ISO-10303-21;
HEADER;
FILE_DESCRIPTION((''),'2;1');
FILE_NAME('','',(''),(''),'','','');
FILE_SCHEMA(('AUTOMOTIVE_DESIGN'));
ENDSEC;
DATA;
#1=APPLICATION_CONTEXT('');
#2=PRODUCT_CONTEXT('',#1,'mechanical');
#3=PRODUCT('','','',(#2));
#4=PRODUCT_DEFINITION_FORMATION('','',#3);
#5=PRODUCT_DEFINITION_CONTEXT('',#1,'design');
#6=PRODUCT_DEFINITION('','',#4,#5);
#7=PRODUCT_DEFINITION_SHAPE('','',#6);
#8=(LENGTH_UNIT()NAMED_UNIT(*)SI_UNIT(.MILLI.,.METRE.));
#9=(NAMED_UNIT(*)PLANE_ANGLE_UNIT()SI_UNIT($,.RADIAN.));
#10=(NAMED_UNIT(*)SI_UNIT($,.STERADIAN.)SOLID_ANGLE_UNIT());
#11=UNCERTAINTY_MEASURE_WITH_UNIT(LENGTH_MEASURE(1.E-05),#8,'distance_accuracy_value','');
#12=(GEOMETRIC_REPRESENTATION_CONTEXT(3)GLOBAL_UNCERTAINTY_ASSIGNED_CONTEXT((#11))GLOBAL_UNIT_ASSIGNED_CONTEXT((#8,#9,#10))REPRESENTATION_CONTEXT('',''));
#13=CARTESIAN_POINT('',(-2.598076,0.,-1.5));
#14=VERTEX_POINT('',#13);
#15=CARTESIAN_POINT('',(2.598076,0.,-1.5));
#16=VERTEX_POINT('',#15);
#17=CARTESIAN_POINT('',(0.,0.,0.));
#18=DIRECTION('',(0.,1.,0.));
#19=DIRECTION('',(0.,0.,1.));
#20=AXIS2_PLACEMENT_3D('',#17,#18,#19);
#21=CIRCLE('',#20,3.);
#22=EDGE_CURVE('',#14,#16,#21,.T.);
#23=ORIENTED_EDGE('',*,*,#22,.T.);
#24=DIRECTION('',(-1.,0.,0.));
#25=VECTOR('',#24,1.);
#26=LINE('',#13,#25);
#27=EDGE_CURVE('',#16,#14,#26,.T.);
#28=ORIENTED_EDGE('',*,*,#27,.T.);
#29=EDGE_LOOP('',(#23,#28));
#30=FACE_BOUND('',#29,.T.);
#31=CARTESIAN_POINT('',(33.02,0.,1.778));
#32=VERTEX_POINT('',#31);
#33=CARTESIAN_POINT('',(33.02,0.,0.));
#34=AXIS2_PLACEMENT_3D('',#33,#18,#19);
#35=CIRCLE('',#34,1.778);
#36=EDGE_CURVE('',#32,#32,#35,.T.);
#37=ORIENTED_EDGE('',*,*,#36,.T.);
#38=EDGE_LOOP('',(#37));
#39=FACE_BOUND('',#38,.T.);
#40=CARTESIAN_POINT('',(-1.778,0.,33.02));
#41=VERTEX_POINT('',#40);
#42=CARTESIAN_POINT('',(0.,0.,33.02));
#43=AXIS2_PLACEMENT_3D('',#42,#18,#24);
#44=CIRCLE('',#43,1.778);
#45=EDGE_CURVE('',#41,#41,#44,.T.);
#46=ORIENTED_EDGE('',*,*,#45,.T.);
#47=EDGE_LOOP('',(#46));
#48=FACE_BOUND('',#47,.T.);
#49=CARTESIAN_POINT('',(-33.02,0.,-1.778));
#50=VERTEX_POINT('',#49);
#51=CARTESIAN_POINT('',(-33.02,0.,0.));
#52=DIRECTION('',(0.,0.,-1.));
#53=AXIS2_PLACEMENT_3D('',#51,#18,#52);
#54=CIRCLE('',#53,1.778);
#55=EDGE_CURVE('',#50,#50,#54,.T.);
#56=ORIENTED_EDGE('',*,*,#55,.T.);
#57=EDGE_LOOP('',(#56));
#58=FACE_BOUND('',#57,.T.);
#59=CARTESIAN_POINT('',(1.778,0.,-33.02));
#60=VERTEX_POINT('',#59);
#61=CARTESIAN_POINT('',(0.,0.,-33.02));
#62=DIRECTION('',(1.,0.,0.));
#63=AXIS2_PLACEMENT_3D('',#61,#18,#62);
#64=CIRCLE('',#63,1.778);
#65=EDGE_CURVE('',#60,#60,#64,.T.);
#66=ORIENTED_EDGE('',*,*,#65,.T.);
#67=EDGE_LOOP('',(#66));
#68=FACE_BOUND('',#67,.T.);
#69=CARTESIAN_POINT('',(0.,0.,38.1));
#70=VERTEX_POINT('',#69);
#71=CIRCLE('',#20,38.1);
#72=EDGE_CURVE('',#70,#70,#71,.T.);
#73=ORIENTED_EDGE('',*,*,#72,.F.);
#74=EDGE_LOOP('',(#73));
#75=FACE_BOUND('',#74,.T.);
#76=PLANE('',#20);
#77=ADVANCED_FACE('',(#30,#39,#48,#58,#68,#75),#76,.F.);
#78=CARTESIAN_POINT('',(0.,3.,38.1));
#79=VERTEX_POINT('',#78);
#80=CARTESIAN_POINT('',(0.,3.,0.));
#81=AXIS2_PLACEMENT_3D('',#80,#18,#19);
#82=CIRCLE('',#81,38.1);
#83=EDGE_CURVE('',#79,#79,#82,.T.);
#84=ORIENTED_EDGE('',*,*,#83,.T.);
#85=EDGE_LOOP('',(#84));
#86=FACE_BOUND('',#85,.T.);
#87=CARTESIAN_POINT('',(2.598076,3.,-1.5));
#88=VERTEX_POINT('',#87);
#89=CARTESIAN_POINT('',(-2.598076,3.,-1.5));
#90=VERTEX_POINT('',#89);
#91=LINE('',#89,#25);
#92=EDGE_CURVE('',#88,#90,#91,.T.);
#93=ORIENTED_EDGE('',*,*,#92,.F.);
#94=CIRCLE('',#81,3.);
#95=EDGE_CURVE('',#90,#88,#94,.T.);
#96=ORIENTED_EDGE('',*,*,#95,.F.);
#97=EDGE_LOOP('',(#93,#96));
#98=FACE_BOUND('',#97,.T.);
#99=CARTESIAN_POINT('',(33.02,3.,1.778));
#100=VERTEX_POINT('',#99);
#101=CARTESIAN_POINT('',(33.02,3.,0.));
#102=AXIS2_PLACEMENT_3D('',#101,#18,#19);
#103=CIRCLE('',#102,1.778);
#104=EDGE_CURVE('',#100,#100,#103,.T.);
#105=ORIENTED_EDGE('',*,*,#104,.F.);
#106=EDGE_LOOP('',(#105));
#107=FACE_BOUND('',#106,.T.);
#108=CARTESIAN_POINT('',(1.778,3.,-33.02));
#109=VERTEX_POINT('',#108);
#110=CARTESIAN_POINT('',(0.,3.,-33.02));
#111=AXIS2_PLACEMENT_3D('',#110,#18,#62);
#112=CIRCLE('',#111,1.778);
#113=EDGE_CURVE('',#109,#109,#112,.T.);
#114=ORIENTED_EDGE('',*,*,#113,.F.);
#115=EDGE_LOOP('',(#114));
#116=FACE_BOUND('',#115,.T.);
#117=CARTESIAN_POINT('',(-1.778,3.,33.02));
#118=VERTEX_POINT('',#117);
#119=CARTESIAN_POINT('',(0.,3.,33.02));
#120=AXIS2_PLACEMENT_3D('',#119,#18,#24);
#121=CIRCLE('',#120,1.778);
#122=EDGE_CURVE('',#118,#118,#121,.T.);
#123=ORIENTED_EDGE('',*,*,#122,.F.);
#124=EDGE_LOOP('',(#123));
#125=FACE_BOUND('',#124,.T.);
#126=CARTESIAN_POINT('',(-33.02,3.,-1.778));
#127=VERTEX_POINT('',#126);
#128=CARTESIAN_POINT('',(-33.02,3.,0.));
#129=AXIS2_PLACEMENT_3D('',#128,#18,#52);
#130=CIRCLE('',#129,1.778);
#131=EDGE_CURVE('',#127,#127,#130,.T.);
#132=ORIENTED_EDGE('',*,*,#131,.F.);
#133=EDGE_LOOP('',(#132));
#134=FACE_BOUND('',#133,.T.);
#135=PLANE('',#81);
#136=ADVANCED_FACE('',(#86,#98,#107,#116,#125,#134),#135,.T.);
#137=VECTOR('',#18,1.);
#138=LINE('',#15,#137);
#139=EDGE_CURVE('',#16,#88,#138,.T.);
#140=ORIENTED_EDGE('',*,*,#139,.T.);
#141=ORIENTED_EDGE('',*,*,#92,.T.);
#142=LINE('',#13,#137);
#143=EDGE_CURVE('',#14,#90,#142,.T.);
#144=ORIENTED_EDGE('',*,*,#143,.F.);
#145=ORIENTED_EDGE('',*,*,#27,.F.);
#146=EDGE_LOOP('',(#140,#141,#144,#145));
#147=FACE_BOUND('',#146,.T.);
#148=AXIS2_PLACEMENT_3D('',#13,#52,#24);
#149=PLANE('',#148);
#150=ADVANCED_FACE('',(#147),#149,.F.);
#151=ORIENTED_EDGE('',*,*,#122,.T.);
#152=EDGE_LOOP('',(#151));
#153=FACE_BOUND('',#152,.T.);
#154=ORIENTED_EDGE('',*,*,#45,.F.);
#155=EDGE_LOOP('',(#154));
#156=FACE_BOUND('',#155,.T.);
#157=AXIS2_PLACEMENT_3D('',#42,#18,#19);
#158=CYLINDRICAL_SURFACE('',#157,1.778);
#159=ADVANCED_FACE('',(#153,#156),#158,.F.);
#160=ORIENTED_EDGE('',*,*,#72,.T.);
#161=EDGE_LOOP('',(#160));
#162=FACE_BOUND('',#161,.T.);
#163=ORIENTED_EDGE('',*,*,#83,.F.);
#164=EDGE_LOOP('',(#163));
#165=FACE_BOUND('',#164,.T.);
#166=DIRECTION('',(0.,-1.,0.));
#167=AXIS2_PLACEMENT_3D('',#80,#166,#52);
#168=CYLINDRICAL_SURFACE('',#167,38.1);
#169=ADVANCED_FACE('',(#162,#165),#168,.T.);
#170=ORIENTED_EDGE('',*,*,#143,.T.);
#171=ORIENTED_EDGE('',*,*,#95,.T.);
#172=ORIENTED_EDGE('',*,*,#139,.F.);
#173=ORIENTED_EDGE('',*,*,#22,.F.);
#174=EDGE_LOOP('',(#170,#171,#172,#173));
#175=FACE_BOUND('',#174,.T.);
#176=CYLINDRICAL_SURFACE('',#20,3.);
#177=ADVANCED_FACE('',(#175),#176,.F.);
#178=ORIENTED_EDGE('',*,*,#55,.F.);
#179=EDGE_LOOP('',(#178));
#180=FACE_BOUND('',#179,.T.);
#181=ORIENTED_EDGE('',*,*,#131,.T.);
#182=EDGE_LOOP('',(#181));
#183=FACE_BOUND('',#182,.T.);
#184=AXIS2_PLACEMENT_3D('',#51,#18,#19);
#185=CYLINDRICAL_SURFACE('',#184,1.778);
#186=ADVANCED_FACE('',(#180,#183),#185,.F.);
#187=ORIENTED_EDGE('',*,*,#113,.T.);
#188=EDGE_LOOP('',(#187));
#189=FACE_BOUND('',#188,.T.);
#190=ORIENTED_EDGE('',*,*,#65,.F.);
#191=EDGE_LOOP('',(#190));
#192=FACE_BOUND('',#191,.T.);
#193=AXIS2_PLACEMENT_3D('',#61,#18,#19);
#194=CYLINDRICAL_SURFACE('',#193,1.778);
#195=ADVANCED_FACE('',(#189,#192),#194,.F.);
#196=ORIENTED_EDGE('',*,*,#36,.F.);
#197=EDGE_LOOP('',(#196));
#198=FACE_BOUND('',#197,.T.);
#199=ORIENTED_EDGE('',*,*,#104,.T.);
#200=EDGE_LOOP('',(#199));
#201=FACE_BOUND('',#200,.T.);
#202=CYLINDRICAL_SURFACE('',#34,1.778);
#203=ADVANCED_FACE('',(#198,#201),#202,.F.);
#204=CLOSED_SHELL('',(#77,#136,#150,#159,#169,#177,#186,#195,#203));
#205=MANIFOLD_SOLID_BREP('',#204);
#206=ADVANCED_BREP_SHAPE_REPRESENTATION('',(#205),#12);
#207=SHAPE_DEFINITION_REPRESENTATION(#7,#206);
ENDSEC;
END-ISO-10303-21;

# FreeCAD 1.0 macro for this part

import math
import FreeCAD as App
import Part
import Sketcher

doc = App.newDocument("Part")
body = doc.addObject("PartDesign::Body", "Body")

# Sketch on XZ plane
sketch1 = doc.addObject("Sketcher::SketchObject", "Sketch")
body.addObject(sketch1)
sketch1.AttachmentSupport = (doc.XZ_Plane, [""])
sketch1.MapMode = "FlatFace"
sketch1.addGeometry(Part.Circle(App.Vector(0, 0, 0), App.Vector(0, 0, 1), 38), False)
sketch1.addConstraint([
    Sketcher.Constraint("Coincident", 0, 3, -1, 1),
    Sketcher.Constraint("Diameter", 0, 76.2),
])
pad1 = doc.addObject("PartDesign::Pad", "Pad")
body.addObject(pad1)
pad1.Profile = sketch1
pad1.Length = 3
pad1.Reversed = True

# Sketch on XZ plane
sketch2 = doc.addObject("Sketcher::SketchObject", "Sketch001")
body.addObject(sketch2)
sketch2.AttachmentSupport = (doc.XZ_Plane, [""])
sketch2.MapMode = "FlatFace"
sketch2.AttachmentOffset = App.Placement(App.Vector(0, 0, -3), App.Rotation())
sketch2.addGeometry(Part.Circle(App.Vector(33, 0, 0), App.Vector(0, 0, 1), 1.8), False)
sketch2.addConstraint([
    Sketcher.Constraint("PointOnObject", 0, 3, -1),
    Sketcher.Constraint("Diameter", 0, 3.556),
    Sketcher.Constraint("DistanceX", -1, 1, 0, 3, 33.02),
])
pocket1 = doc.addObject("PartDesign::Pocket", "Pocket")
body.addObject(pocket1)
pocket1.Profile = sketch2
pocket1.Type = "ThroughAll"
pocket1.Reversed = True
doc.recompute()

polarpattern = doc.addObject("PartDesign::PolarPattern", "PolarPattern")
body.addObject(polarpattern)
polarpattern.Originals = [pocket1]
polarpattern.Axis = (doc.Y_Axis, [""])
polarpattern.Angle = 360
polarpattern.Occurrences = 4
body.Tip = polarpattern

# Sketch on XZ plane
sketch3 = doc.addObject("Sketcher::SketchObject", "Sketch002")
body.addObject(sketch3)
sketch3.AttachmentSupport = (doc.XZ_Plane, [""])
sketch3.MapMode = "FlatFace"
sketch3.AttachmentOffset = App.Placement(App.Vector(0, 0, -3), App.Rotation())
sketch3.addGeometry([
    Part.LineSegment(App.Vector(2.6, -1.5, 0), App.Vector(-2.6, -1.5, 0)),
    Part.ArcOfCircle(Part.Circle(App.Vector(0, 0, 0), App.Vector(0, 0, 1), 3), math.radians(-30), math.radians(210)),
], False)
sketch3.addConstraint([
    Sketcher.Constraint("Coincident", 0, 1, 1, 1),
    Sketcher.Constraint("Coincident", 1, 2, 0, 2),
    Sketcher.Constraint("Horizontal", 0),
    Sketcher.Constraint("Coincident", 1, 3, -1, 1),
    Sketcher.Constraint("Radius", 1, 3.0),
    Sketcher.Constraint("DistanceY", 0, 1, -1, 1, 1.5),
])
pocket2 = doc.addObject("PartDesign::Pocket", "Pocket001")
body.addObject(pocket2)
pocket2.Profile = sketch3
pocket2.Type = "ThroughAll"
pocket2.Reversed = True

doc.recompute()
